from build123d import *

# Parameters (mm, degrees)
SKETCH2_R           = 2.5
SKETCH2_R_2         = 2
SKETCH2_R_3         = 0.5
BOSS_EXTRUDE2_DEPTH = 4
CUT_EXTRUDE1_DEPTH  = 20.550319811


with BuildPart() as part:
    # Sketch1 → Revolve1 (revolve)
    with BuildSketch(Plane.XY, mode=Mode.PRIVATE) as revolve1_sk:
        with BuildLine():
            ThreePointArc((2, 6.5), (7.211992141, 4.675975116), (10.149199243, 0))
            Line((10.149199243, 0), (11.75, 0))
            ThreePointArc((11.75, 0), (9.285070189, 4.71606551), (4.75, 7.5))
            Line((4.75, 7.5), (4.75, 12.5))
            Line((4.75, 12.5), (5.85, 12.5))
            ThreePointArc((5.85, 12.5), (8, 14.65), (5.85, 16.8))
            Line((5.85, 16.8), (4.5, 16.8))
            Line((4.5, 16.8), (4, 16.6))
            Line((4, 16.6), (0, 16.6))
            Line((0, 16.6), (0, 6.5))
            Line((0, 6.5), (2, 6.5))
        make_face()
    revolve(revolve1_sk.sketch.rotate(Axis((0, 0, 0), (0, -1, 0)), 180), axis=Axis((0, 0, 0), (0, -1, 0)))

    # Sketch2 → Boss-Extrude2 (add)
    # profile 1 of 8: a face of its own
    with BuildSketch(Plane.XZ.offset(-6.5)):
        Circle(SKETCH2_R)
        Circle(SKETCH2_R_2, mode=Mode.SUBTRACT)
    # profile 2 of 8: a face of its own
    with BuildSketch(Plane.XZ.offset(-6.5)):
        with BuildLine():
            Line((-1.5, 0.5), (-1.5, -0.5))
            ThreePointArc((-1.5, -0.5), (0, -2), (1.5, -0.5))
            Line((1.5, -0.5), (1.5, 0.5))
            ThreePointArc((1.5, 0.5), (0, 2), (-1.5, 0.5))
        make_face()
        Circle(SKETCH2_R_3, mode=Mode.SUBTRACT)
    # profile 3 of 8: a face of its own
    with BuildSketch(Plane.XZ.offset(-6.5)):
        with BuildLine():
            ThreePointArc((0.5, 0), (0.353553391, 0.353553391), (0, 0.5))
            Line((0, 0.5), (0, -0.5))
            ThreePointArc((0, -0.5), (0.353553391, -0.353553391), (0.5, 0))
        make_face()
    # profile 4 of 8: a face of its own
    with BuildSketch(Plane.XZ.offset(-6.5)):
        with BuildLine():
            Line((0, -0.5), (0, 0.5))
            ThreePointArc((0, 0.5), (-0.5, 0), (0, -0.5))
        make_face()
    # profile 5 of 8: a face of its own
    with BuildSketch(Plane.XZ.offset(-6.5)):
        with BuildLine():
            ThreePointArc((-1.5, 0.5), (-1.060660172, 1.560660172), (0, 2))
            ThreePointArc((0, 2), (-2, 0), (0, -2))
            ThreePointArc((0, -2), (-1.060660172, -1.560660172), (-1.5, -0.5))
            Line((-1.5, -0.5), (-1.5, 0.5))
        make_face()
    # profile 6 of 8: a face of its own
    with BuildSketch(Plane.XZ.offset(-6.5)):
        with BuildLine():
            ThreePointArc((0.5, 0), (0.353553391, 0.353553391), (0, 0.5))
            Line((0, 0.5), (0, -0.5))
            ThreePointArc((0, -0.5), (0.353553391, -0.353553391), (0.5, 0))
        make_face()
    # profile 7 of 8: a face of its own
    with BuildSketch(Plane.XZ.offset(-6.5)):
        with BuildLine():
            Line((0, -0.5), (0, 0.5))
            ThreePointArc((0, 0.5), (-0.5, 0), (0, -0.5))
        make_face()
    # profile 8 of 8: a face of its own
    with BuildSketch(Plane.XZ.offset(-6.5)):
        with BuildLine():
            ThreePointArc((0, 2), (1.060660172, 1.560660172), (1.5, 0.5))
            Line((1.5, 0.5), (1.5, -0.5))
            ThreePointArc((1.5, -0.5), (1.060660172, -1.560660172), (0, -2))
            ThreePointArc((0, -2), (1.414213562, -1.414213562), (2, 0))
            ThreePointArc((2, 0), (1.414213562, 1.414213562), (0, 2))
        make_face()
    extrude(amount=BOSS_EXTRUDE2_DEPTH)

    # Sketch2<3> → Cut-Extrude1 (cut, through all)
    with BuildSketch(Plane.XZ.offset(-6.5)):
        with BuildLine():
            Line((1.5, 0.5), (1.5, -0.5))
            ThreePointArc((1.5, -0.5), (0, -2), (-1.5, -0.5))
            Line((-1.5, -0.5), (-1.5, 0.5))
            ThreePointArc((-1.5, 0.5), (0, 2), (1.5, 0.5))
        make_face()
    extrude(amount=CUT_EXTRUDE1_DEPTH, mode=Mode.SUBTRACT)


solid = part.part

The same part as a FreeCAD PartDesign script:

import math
import FreeCAD as App
import Part
import Sketcher

V = App.Vector
Q = App.Units.Quantity

doc = App.newDocument("Part")
body = doc.addObject("PartDesign::Body", "Body")

# Sketch on XY plane
sketch1 = body.newObject("Sketcher::SketchObject", "Sketch")
sketch1.AttachmentSupport = (doc.getObject("XY_Plane"), [""])
sketch1.MapMode = "FlatFace"
sketch1.addGeometry([
    Part.ArcOfCircle(Part.Circle(V(2, -1.9, 0), V(0, 0, 1), 8.4), math.radians(13), math.radians(90)),  # 0
    Part.LineSegment(V(10.1, 0, 0), V(11.8, 0, 0)),  # 1
    Part.ArcOfCircle(Part.Circle(V(2, -2.1, 0), V(0, 0, 1), 10), math.radians(12), math.radians(74)),  # 2
    Part.LineSegment(V(4.8, 7.5, 0), V(4.8, 12.5, 0)),  # 3
    Part.LineSegment(V(4.8, 12.5, 0), V(5.8, 12.5, 0)),  # 4
    Part.ArcOfCircle(Part.Circle(V(5.8, 14.7, 0), V(0, 0, 1), 2.1), math.radians(-90), math.radians(90)),  # 5
    Part.LineSegment(V(5.8, 16.8, 0), V(4.5, 16.8, 0)),  # 6
    Part.LineSegment(V(4.5, 16.8, 0), V(4, 16.6, 0)),  # 7
    Part.LineSegment(V(4, 16.6, 0), V(0, 16.6, 0)),  # 8
    Part.LineSegment(V(0, 16.6, 0), V(0, 6.5, 0)),  # 9
    Part.LineSegment(V(0, 6.5, 0), V(2, 6.5, 0)),  # 10
], False)
sketch1.addConstraint([
    Sketcher.Constraint("Coincident", 0, 1, 1, 1),
    Sketcher.Constraint("Coincident", 1, 2, 2, 1),
    Sketcher.Constraint("Coincident", 2, 2, 3, 1),
    Sketcher.Constraint("Coincident", 3, 2, 4, 1),
    Sketcher.Constraint("Tangent", 4, 2, 5, 1),
    Sketcher.Constraint("Tangent", 5, 2, 6, 1),
    Sketcher.Constraint("Coincident", 6, 2, 7, 1),
    Sketcher.Constraint("Coincident", 7, 2, 8, 1),
    Sketcher.Constraint("Coincident", 8, 2, 9, 1),
    Sketcher.Constraint("Coincident", 9, 2, 10, 1),
    Sketcher.Constraint("Tangent", 10, 2, 0, 2),
    Sketcher.Constraint("Horizontal", 1),
    Sketcher.Constraint("Vertical", 3),
    Sketcher.Constraint("Horizontal", 4),
    Sketcher.Constraint("Horizontal", 6),
    Sketcher.Constraint("Horizontal", 8),
    Sketcher.Constraint("Vertical", 9),
    Sketcher.Constraint("Horizontal", 10),
    Sketcher.Constraint("PointOnObject", 0, 1, -1),
    Sketcher.Constraint("PointOnObject", 8, 2, -2),
    Sketcher.Constraint("Radius", 2, Q("10 mm")),
    Sketcher.Constraint("DistanceX", 8, 2, 8, 1, Q("4 mm")),
    Sketcher.Constraint("DistanceX", 10, 1, 10, 2, Q("2 mm")),
    Sketcher.Constraint("DistanceY", 3, 1, 3, 2, Q("5 mm")),
    Sketcher.Constraint("Radius", 5, Q("2.15 mm")),
    Sketcher.Constraint("DistanceX", 4, 1, 4, 2, Q("1.1 mm")),
    Sketcher.Constraint("DistanceY", 9, 2, 9, 1, Q("10.1 mm")),
    Sketcher.Constraint("DistanceX", 2, 2, 1, 2, Q("7 mm")),
    Sketcher.Constraint("DistanceY", 9, 2, 2, 2, Q("1 mm")),
    Sketcher.Constraint("DistanceX", 6, 2, 6, 1, Q("1.35 mm")),
    Sketcher.Constraint("DistanceY", -1, 1, 2, 2, Q("7.5 mm")),
    Sketcher.Constraint("DistanceX", -1, 1, 6, 2, Q("4.5 mm")),
    Sketcher.Constraint("Radius", 0, Q("8.358419 mm")),
])
revolution = body.newObject("PartDesign::Revolution", "Revolution")
revolution.Profile = sketch1
revolution.ReferenceAxis = (sketch1, ["V_Axis"])
revolution.Angle = 360

# Sketch on XZ plane
sketch2 = body.newObject("Sketcher::SketchObject", "Sketch001")
sketch2.AttachmentSupport = (doc.getObject("XZ_Plane"), [""])
sketch2.MapMode = "FlatFace"
sketch2.AttachmentOffset = App.Placement(V(0, 0, -6.5), App.Rotation())
sketch2.addGeometry(Part.Circle(V(0, 0, 0), V(0, 0, 1), 2.5), False)
sketch2.addConstraint([
    Sketcher.Constraint("Coincident", 0, 3, -1, 1),
    Sketcher.Constraint("Diameter", 0, Q("5 mm")),
])
pad1 = body.newObject("PartDesign::Pad", "Pad")
pad1.Profile = sketch2
pad1.Length = 4

# Sketch on XZ plane
sketch3 = body.newObject("Sketcher::SketchObject", "Sketch002")
sketch3.AttachmentSupport = (doc.getObject("XZ_Plane"), [""])
sketch3.MapMode = "FlatFace"
sketch3.AttachmentOffset = App.Placement(V(0, 0, -6.5), App.Rotation())
sketch3.addGeometry([
    Part.LineSegment(V(1.5, -0.5, 0), V(1.5, 0.5, 0)),
    Part.ArcOfCircle(Part.Circle(V(0, 0.5, 0), V(0, 0, 1), 1.5), math.radians(0), math.radians(180)),
    Part.LineSegment(V(-1.5, 0.5, 0), V(-1.5, -0.5, 0)),
    Part.ArcOfCircle(Part.Circle(V(0, -0.5, 0), V(0, 0, 1), 1.5), math.radians(180), math.radians(360)),
], False)
sketch3.addConstraint([
    Sketcher.Constraint("Tangent", 0, 2, 1, 1),
    Sketcher.Constraint("Tangent", 1, 2, 2, 1),
    Sketcher.Constraint("Tangent", 2, 2, 3, 1),
    Sketcher.Constraint("Tangent", 3, 2, 0, 1),
    Sketcher.Constraint("Vertical", 0),
    Sketcher.Constraint("Vertical", 2),
    Sketcher.Constraint("Symmetric", 1, 3, 3, 3, -1, 1),
    Sketcher.Constraint("Radius", 1, Q("1.5 mm")),
    Sketcher.Constraint("DistanceY", 0, 1, 0, 2, Q("1 mm")),
])
pocket1 = body.newObject("PartDesign::Pocket", "Pocket")
pocket1.Profile = sketch3
pocket1.Type = "ThroughAll"
pocket1.Reversed = True

doc.recompute()
